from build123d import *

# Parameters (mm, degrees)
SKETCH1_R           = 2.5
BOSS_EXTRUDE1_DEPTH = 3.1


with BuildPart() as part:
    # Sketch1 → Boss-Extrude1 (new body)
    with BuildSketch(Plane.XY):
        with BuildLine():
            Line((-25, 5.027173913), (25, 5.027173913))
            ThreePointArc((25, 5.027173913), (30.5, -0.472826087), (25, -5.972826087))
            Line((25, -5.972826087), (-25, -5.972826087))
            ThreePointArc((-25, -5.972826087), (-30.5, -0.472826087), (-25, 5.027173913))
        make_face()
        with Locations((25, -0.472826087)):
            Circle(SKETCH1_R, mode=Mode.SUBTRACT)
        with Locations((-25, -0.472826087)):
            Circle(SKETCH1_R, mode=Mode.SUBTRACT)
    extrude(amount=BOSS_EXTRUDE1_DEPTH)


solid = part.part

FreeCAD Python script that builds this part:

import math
import FreeCAD as App
import Part
import Sketcher

doc = App.newDocument("Part")
body = doc.addObject("PartDesign::Body", "Body")

# Sketch on XY plane
sketch1 = body.newObject("Sketcher::SketchObject", "Sketch")
sketch1.AttachmentSupport = (doc.getObject("XY_Plane"), [""])
sketch1.MapMode = "FlatFace"
sketch1.addGeometry([
    Part.LineSegment(App.Vector(25, 5, 0), App.Vector(-25, 5, 0)),  # 0
    Part.ArcOfCircle(Part.Circle(App.Vector(-25, -0.5, 0), App.Vector(0, 0, 1), 5.5), math.radians(90), math.radians(270)),  # 1
    Part.LineSegment(App.Vector(-25, -6, 0), App.Vector(25, -6, 0)),  # 2
    Part.ArcOfCircle(Part.Circle(App.Vector(25, -0.5, 0), App.Vector(0, 0, 1), 5.5), math.radians(-90), math.radians(90)),  # 3
    Part.Circle(App.Vector(25, -0.5, 0), App.Vector(0, 0, 1), 2.5),  # 4
    Part.Circle(App.Vector(-25, -0.5, 0), App.Vector(0, 0, 1), 2.5),  # 5
], False)
sketch1.addConstraint([
    Sketcher.Constraint("Tangent", 0, 2, 1, 1),
    Sketcher.Constraint("Tangent", 1, 2, 2, 1),
    Sketcher.Constraint("Tangent", 2, 2, 3, 1),
    Sketcher.Constraint("Tangent", 3, 2, 0, 1),
    Sketcher.Constraint("Horizontal", 0),
    Sketcher.Constraint("Horizontal", 2),
    Sketcher.Constraint("Coincident", 4, 3, 3, 3),
    Sketcher.Constraint("Coincident", 5, 3, 1, 3),
    Sketcher.Constraint("Equal", 4, 5),
    Sketcher.Constraint("Diameter", 4, 5.0),
    Sketcher.Constraint("Radius", 1, 5.5),
    Sketcher.Constraint("DistanceX", 0, 2, 0, 1, 50.0),
    Sketcher.Constraint("DistanceX", 1, 3, -1, 1, 25.0),
    Sketcher.Constraint("DistanceY", 1, 3, -1, 1, 0.472826),
])
pad1 = body.newObject("PartDesign::Pad", "Pad")
pad1.Profile = sketch1
pad1.Length = 3.1

doc.recompute()
